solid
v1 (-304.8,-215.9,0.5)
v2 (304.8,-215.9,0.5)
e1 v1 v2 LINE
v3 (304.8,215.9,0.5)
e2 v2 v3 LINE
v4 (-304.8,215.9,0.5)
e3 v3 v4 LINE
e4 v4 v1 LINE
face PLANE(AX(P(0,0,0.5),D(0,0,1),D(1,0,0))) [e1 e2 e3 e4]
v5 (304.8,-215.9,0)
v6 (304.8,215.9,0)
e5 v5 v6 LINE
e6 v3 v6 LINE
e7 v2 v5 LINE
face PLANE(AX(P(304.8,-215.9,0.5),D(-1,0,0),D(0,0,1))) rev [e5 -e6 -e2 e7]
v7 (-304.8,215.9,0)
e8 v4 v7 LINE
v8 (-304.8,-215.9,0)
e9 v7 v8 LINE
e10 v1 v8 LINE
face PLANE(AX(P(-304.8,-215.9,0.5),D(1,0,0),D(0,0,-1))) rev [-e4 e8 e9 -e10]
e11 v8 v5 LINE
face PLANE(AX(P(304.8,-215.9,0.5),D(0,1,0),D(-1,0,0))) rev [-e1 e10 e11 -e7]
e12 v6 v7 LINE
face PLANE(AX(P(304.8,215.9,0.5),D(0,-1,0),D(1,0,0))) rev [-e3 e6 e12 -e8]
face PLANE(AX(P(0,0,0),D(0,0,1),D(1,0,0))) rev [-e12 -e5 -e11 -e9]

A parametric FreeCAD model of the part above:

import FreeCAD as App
import Part
import Sketcher
from FreeCAD import Vector
Q = App.Units.Quantity


def add_polygon(sketch, points):
    """Adds a closed chain of lines whose ends are joined by coincident constraints."""
    first, n = sketch.GeometryCount, len(points)
    for a, b in zip(points, points[1:] + points[:1]):
        sketch.addGeometry(Part.LineSegment(App.Vector(*a, 0), App.Vector(*b, 0)), False)
    for i in range(n):
        sketch.addConstraint(Sketcher.Constraint("Coincident", first + i, 2, first + (i + 1) % n, 1))

doc = App.newDocument("Part")
body = doc.addObject("PartDesign::Body", "Body")

sketch1 = body.newObject("Sketcher::SketchObject", "Sketch")
sketch1.AttachmentSupport = (doc.getObject("XY_Plane"), [""])
sketch1.MapMode = "FlatFace"
add_polygon(sketch1, [(-305, 216), (-305, -216), (305, -216), (305, 216)])
sketch1.addConstraint([
    Sketcher.Constraint("Vertical", 0),
    Sketcher.Constraint("Horizontal", 1),
    Sketcher.Constraint("Vertical", 2),
    Sketcher.Constraint("Horizontal", 3),
    Sketcher.Constraint("Symmetric", 0, 2, 2, 2, -1, 1),
    Sketcher.Constraint("DistanceX", 1, 1, 1, 2, Q("24 in")),
    Sketcher.Constraint("DistanceY", 0, 2, 0, 1, Q("17 in")),
])
pad1 = body.newObject("PartDesign::Pad", "Pad")
pad1.Profile = sketch1
pad1.Length = 0.5

doc.recompute()
